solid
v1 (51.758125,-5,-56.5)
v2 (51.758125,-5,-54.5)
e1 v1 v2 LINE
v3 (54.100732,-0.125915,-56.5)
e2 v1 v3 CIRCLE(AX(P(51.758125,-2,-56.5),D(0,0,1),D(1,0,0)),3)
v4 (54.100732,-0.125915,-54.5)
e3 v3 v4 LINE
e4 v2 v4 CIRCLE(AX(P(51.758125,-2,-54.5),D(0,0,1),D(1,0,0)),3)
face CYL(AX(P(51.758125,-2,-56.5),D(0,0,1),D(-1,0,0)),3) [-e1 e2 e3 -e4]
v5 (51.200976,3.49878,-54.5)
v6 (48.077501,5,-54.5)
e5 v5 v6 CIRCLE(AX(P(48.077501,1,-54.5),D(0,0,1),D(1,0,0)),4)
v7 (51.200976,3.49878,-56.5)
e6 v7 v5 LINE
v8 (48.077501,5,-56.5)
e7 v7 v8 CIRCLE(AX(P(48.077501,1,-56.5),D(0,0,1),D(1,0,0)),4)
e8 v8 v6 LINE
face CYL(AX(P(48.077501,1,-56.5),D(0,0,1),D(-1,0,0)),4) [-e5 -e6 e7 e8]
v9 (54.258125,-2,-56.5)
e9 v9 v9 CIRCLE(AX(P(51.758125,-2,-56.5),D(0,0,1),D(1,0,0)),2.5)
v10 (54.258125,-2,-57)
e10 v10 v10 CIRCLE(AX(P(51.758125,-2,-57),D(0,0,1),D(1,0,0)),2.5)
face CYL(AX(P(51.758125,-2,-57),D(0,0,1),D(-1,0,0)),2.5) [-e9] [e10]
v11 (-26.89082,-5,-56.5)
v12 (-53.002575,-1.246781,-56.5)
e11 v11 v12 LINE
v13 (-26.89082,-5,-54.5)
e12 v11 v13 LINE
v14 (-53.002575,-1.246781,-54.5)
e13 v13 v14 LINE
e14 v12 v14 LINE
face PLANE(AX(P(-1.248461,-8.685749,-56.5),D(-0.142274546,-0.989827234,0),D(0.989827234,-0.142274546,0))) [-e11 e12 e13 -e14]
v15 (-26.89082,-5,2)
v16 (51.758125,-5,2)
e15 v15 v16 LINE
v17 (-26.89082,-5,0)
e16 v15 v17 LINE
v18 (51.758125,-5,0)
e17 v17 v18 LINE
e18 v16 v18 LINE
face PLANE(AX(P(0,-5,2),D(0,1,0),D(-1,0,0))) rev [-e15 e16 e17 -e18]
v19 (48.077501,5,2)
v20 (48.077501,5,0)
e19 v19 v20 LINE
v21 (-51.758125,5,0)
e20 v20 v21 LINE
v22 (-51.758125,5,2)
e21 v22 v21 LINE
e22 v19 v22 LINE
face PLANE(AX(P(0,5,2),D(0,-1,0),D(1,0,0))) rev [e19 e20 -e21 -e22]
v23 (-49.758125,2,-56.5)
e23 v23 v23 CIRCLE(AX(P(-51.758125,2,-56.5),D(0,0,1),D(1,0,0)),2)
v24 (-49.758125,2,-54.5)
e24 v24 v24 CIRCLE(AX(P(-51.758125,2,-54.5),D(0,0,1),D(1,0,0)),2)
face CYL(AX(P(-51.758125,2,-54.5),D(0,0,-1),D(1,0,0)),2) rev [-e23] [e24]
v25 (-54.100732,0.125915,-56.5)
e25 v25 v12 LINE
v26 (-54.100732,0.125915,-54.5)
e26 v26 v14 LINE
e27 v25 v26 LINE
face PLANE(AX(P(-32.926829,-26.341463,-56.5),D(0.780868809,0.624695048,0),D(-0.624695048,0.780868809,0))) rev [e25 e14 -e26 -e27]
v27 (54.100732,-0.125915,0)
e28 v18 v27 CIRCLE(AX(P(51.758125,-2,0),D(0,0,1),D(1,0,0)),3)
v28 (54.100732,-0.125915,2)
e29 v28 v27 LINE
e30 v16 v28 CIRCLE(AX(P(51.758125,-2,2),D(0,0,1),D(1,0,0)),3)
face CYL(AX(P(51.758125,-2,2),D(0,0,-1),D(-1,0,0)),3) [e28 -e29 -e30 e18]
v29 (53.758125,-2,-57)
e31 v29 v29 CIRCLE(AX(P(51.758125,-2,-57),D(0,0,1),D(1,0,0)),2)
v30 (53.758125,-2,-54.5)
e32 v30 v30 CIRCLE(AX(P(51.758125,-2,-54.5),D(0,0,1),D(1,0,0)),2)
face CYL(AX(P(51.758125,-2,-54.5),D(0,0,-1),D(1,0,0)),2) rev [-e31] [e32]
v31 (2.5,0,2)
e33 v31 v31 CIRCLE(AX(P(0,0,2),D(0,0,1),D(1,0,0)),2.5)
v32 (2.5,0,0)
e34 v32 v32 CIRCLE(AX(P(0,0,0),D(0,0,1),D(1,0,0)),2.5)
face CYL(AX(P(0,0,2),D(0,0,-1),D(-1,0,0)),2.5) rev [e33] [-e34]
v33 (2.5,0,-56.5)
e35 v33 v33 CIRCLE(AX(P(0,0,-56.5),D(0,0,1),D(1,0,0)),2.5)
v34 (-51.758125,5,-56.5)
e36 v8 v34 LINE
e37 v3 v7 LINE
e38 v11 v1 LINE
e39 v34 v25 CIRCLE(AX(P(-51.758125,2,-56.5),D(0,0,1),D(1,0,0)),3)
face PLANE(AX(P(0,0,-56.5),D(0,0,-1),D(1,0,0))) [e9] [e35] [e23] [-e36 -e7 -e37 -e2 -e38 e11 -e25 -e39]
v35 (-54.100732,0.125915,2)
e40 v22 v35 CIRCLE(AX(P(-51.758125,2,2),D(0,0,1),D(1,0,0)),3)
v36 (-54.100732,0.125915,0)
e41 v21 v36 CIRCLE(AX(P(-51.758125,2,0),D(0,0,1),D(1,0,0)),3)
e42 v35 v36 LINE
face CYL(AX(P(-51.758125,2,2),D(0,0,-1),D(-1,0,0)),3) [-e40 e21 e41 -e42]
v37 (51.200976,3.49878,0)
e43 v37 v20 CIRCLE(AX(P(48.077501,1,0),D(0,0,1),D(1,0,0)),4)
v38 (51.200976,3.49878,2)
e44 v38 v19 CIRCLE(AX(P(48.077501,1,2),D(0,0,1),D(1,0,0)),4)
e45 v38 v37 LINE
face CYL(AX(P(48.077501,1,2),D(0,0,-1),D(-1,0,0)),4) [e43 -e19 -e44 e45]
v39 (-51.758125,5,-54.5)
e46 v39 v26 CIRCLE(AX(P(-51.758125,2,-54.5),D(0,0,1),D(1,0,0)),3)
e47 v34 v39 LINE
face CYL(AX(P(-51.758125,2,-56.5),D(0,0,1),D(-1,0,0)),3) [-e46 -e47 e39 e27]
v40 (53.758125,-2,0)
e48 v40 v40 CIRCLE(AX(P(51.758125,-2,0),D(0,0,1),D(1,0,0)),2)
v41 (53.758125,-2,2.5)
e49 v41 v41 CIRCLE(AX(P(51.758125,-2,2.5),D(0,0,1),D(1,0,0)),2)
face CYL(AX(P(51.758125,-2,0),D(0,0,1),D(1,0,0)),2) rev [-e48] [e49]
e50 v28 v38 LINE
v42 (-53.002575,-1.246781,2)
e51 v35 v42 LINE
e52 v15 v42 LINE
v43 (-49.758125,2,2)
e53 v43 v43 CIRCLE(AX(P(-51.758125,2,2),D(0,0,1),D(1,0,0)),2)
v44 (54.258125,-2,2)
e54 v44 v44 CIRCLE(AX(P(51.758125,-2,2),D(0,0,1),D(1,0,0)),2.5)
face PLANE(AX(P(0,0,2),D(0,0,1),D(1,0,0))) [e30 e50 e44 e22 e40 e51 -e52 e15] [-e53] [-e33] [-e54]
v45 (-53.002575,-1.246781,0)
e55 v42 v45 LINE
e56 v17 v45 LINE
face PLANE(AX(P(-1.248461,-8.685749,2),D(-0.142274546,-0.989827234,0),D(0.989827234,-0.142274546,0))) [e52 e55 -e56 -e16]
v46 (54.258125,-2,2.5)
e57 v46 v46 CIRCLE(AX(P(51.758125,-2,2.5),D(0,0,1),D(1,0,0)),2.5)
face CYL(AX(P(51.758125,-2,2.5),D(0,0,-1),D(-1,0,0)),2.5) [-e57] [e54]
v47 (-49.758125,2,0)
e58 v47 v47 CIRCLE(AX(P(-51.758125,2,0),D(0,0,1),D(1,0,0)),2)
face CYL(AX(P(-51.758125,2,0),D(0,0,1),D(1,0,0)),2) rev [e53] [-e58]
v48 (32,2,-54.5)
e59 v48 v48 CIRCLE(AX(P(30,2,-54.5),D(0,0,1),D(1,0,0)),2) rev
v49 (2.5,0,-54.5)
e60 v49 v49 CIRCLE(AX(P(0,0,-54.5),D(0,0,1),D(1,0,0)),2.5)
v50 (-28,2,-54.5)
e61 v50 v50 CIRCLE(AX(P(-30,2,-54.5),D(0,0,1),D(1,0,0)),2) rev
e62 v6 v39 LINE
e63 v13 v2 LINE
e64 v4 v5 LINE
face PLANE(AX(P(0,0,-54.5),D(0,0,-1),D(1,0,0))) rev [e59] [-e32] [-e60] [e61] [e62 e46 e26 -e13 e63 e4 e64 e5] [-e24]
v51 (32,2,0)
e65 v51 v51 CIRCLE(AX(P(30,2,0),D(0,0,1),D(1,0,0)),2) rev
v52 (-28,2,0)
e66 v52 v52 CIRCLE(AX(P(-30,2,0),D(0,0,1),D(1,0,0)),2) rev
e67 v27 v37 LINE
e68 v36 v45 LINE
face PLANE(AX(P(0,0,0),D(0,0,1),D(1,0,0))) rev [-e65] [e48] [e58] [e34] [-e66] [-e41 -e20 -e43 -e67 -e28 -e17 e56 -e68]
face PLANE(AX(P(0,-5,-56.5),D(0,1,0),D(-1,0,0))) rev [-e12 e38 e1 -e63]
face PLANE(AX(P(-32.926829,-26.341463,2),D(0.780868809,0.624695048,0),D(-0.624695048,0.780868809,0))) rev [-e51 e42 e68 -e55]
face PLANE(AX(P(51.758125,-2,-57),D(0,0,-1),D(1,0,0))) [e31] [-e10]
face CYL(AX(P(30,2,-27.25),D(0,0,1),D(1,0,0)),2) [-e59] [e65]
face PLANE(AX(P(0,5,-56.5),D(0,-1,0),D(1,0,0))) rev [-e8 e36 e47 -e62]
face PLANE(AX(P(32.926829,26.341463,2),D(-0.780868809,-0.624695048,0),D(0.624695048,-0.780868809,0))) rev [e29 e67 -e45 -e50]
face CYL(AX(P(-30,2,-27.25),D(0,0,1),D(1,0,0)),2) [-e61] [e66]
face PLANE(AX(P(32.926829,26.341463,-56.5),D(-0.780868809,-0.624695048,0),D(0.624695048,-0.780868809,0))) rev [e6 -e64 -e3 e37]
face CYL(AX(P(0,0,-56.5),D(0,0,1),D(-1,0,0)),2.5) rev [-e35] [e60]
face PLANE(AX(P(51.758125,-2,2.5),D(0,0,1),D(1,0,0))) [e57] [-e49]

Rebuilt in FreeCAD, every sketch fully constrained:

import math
import FreeCAD as App
import Part
import Sketcher
Q = App.Units.Quantity

doc = App.newDocument("Part")
body = doc.addObject("PartDesign::Body", "Body")

# Sketch on XY plane
sketch1 = body.newObject("Sketcher::SketchObject", "Sketch")
sketch1.AttachmentSupport = (doc.getObject("XY_Plane"), [""])
sketch1.MapMode = "FlatFace"
sketch1.addGeometry([
    Part.LineSegment(App.Vector(-53, -1.2, 0), App.Vector(-26.9, -5, 0)),  # 0
    Part.LineSegment(App.Vector(-26.9, -5, 0), App.Vector(51.8, -5, 0)),  # 1
    Part.ArcOfCircle(Part.Circle(App.Vector(51.8, -2, 0), App.Vector(0, 0, 1), 3), math.radians(-90), math.radians(39)),  # 2
    Part.LineSegment(App.Vector(54.1, -0.1, 0), App.Vector(51.2, 3.5, 0)),  # 3
    Part.ArcOfCircle(Part.Circle(App.Vector(48.1, 1, 0), App.Vector(0, 0, 1), 4), math.radians(39), math.radians(90)),  # 4
    Part.LineSegment(App.Vector(48.1, 5, 0), App.Vector(-51.8, 5, 0)),  # 5
    Part.ArcOfCircle(Part.Circle(App.Vector(-51.8, 2, 0), App.Vector(0, 0, 1), 3), math.radians(90), math.radians(219)),  # 6
    Part.LineSegment(App.Vector(-54.1, 0.1, 0), App.Vector(-53, -1.2, 0)),  # 7
    Part.Circle(App.Vector(0, 0, 0), App.Vector(0, 0, 1), 2.5),  # 8
], False)
sketch1.addConstraint([
    Sketcher.Constraint("Coincident", 0, 2, 1, 1),
    Sketcher.Constraint("Tangent", 1, 2, 2, 1),
    Sketcher.Constraint("Tangent", 2, 2, 3, 1),
    Sketcher.Constraint("Tangent", 3, 2, 4, 1),
    Sketcher.Constraint("Tangent", 4, 2, 5, 1),
    Sketcher.Constraint("Tangent", 5, 2, 6, 1),
    Sketcher.Constraint("Tangent", 6, 2, 7, 1),
    Sketcher.Constraint("Coincident", 7, 2, 0, 1),
    Sketcher.Constraint("Horizontal", 1),
    Sketcher.Constraint("Horizontal", 5),
    Sketcher.Constraint("Coincident", 8, 3, -1, 1),
    Sketcher.Constraint("Equal", 2, 6),
    Sketcher.Constraint("Symmetric", 2, 3, 6, 3, -1, 1),
    Sketcher.Constraint("Parallel", 3, 7),
    Sketcher.Constraint("Diameter", 8, Q("5 mm")),
    Sketcher.Constraint("Radius", 2, Q("3 mm")),
    Sketcher.Constraint("Radius", 4, Q("4 mm")),
    Sketcher.Constraint("DistanceY", 2, 3, -1, 1, Q("2 mm")),
    Sketcher.Constraint("DistanceX", -1, 1, 4, 3, Q("48.077501 mm")),
    Sketcher.Constraint("Distance", 7, Q("1.757909 mm")),
    Sketcher.Constraint("DistanceX", 1, 1, 1, 2, Q("78.648945 mm")),
    Sketcher.Constraint("DistanceX", 5, 2, 5, 1, Q("99.835626 mm")),
])
pad1 = body.newObject("PartDesign::Pad", "Pad")
pad1.Profile = sketch1
pad1.Length = 2

# Sketch on XY plane
sketch2 = body.newObject("Sketcher::SketchObject", "Sketch001")
sketch2.AttachmentSupport = (doc.getObject("XY_Plane"), [""])
sketch2.MapMode = "FlatFace"
sketch2.AttachmentOffset = App.Placement(App.Vector(0, 0, 2), App.Rotation())
sketch2.addGeometry(Part.Circle(App.Vector(51.8, -2, 0), App.Vector(0, 0, 1), 2.5), False)
sketch2.addConstraint([
    Sketcher.Constraint("Diameter", 0, Q("5 mm")),
    Sketcher.Constraint("DistanceY", 0, 3, -1, 1, Q("2 mm")),
    Sketcher.Constraint("DistanceX", -1, 1, 0, 3, Q("51.758125 mm")),
])
pad2 = body.newObject("PartDesign::Pad", "Pad001")
pad2.Profile = sketch2
pad2.Length = 0.5

# Sketch on XY plane
sketch3 = body.newObject("Sketcher::SketchObject", "Sketch002")
sketch3.AttachmentSupport = (doc.getObject("XY_Plane"), [""])
sketch3.MapMode = "FlatFace"
sketch3.AttachmentOffset = App.Placement(App.Vector(0, 0, 2), App.Rotation())
sketch3.addGeometry([
    Part.Circle(App.Vector(-51.8, 2, 0), App.Vector(0, 0, 1), 2),
    Part.Circle(App.Vector(51.8, -2, 0), App.Vector(0, 0, 1), 2),
], False)
sketch3.addConstraint([
    Sketcher.Constraint("Equal", 0, 1),
    Sketcher.Constraint("Symmetric", 0, 3, 1, 3, -1, 1),
    Sketcher.Constraint("Diameter", 0, Q("4 mm")),
    Sketcher.Constraint("DistanceY", -1, 1, 0, 3, Q("2 mm")),
    Sketcher.Constraint("DistanceX", 0, 3, 1, 3, Q("103.516251 mm")),
])
pocket1 = body.newObject("PartDesign::Pocket", "Pocket")
pocket1.Profile = sketch3
pocket1.Type = "ThroughAll"
pocket1.Midplane = True

# Sketch on XY plane
sketch4 = body.newObject("Sketcher::SketchObject", "Sketch003")
sketch4.AttachmentSupport = (doc.getObject("XY_Plane"), [""])
sketch4.MapMode = "FlatFace"
sketch4.AttachmentOffset = App.Placement(App.Vector(0, 0, 2), App.Rotation())
sketch4.addGeometry([
    Part.Circle(App.Vector(-30, 2, 0), App.Vector(0, 0, 1), 2),
    Part.Circle(App.Vector(30, 2, 0), App.Vector(0, 0, 1), 2),
], False)
sketch4.addConstraint([
    Sketcher.Constraint("Equal", 0, 1),
    Sketcher.Constraint("Symmetric", 0, 3, 1, 3, -2),
    Sketcher.Constraint("Diameter", 0, Q("4 mm")),
    Sketcher.Constraint("DistanceX", 0, 3, -1, 1, Q("30 mm")),
    Sketcher.Constraint("DistanceY", -1, 1, 0, 3, Q("2 mm")),
])
pad3 = body.newObject("PartDesign::Pad", "Pad002")
pad3.Profile = sketch4
pad3.Length = 29.25
pad3.Reversed = True
body2 = doc.addObject("PartDesign::Body", "Body001")
doc.recompute()

body2.BaseFeature = body
doc.recompute()

mirroring = doc.addObject("Part::Mirroring", "Mirroring")
mirroring.Source = body
mirroring.Base = App.Vector(-30, 2, -27.25)
mirroring.Normal = App.Vector(0, 0, -1)
body3 = doc.addObject("PartDesign::Body", "Body002")
body3.BaseFeature = mirroring
boolean = body2.newObject("PartDesign::Boolean", "Boolean")
boolean.Type = "Fuse"
boolean.addObjects([body3])
doc.recompute()
mirroring.Visibility = False

doc.recompute()
